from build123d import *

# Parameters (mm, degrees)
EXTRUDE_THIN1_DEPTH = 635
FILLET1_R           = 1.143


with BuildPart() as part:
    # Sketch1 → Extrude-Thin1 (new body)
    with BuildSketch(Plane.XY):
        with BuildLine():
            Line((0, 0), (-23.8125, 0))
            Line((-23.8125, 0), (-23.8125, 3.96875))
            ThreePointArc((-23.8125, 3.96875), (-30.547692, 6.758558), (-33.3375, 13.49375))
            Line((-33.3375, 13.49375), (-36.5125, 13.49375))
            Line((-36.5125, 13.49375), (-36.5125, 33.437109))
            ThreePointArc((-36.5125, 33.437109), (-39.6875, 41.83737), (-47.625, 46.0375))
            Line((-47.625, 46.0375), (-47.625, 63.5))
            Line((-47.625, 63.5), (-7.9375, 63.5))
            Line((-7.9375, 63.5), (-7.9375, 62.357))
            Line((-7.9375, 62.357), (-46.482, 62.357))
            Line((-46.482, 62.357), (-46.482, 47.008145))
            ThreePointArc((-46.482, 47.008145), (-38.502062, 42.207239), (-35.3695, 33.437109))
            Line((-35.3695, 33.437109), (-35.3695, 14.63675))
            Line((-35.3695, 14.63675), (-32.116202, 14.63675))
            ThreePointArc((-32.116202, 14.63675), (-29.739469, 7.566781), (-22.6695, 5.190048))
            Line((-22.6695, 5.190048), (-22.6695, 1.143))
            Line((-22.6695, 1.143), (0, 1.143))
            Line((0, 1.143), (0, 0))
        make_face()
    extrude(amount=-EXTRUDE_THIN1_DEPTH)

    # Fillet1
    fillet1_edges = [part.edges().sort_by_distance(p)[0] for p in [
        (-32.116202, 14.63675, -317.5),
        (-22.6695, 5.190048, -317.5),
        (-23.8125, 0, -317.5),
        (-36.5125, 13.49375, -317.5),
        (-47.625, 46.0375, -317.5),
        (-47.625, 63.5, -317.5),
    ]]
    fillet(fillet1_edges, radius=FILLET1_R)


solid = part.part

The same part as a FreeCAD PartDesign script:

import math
import FreeCAD as App
import Part
import Sketcher
Q = App.Units.Quantity


def edges_at(feature, points):
    """Names of the edges that pass closest to the given points."""
    edges = feature.Shape.Edges
    near = lambda p: min(range(len(edges)), key=lambda i: edges[i].distToShape(Part.Vertex(*p))[0])
    return sorted({f"Edge{near(p) + 1}" for p in points})

doc = App.newDocument("Part")
params = doc.addObject("Spreadsheet::Sheet", "Params")
for row, (alias, value) in enumerate([
    ("sketch1_radius", "0.5 in"),
    ("sketch1_radius2", "0.33 in"),
    ("sketch1_radius3", "0.5449999 in"),
    ("sketch1_radius4", "0.375 in"),
    ("sketch1_width", "0.9375 in"),
    ("pad1_length", "25 in"),
    ("fillet_radius", "0.045 in"),
], start=1):
    params.set(f"A{row}", alias)
    params.set(f"B{row}", "=" + value)
    params.setAlias(f"B{row}", alias)

body = doc.addObject("PartDesign::Body", "Body")

sketch1 = body.newObject("Sketcher::SketchObject", "Sketch")
sketch1.AttachmentSupport = (doc.getObject("XY_Plane"), [""])
sketch1.MapMode = "FlatFace"
sketch1.addGeometry(Part.LineSegment(App.Vector(-23.8, 0, 0), App.Vector(0, 0, 0)), False)
sketch1.addGeometry(Part.LineSegment(App.Vector(0, 0, 0), App.Vector(0, 1.1, 0)), False)
sketch1.addGeometry(Part.LineSegment(App.Vector(0, 1.1, 0), App.Vector(-22.7, 1.1, 0)), False)
sketch1.addGeometry(Part.LineSegment(App.Vector(-22.7, 1.1, 0), App.Vector(-22.7, 5.2, 0)), False)
sketch1.addGeometry(Part.ArcOfCircle(Part.Circle(App.Vector(-23.8, 13.5, 0), App.Vector(0, 0, 1), 8.4), math.radians(172), math.radians(278)), False)
sketch1.addGeometry(Part.LineSegment(App.Vector(-32.1, 14.6, 0), App.Vector(-35.4, 14.6, 0)), False)
sketch1.addGeometry(Part.LineSegment(App.Vector(-35.4, 14.6, 0), App.Vector(-35.4, 33.4, 0)), False)
sketch1.addGeometry(Part.ArcOfCircle(Part.Circle(App.Vector(-49.2, 33.4, 0), App.Vector(0, 0, 1), 13.8), math.radians(0), math.radians(79)), False)
sketch1.addGeometry(Part.LineSegment(App.Vector(-46.5, 47, 0), App.Vector(-46.5, 62.4, 0)), False)
sketch1.addGeometry(Part.LineSegment(App.Vector(-46.5, 62.4, 0), App.Vector(-7.9, 62.4, 0)), False)
sketch1.addGeometry(Part.LineSegment(App.Vector(-7.9, 62.4, 0), App.Vector(-7.9, 63.5, 0)), False)
sketch1.addGeometry(Part.LineSegment(App.Vector(-7.9, 63.5, 0), App.Vector(-47.6, 63.5, 0)), False)
sketch1.addGeometry(Part.LineSegment(App.Vector(-47.6, 63.5, 0), App.Vector(-47.6, 46, 0)), False)
sketch1.addGeometry(Part.ArcOfCircle(Part.Circle(App.Vector(-49.2, 33.4, 0), App.Vector(0, 0, 1), 12.7), math.radians(0), math.radians(83)), False)
sketch1.addGeometry(Part.LineSegment(App.Vector(-36.5, 33.4, 0), App.Vector(-36.5, 13.5, 0)), False)
sketch1.addGeometry(Part.LineSegment(App.Vector(-36.5, 13.5, 0), App.Vector(-33.3, 13.5, 0)), False)
sketch1.addGeometry(Part.ArcOfCircle(Part.Circle(App.Vector(-23.8, 13.5, 0), App.Vector(0, 0, 1), 9.5), math.radians(-180), math.radians(-90)), False)
sketch1.addGeometry(Part.LineSegment(App.Vector(-23.8, 4, 0), App.Vector(-23.8, 0, 0)), False)
sketch1.addConstraint(Sketcher.Constraint("Coincident", 0, 2, 1, 1))
sketch1.addConstraint(Sketcher.Constraint("Coincident", 1, 2, 2, 1))
sketch1.addConstraint(Sketcher.Constraint("Coincident", 2, 2, 3, 1))
sketch1.addConstraint(Sketcher.Constraint("Coincident", 3, 2, 4, 2))
sketch1.addConstraint(Sketcher.Constraint("Coincident", 4, 1, 5, 1))
sketch1.addConstraint(Sketcher.Constraint("Coincident", 5, 2, 6, 1))
sketch1.addConstraint(Sketcher.Constraint("Tangent", 6, 2, 7, 1))
sketch1.addConstraint(Sketcher.Constraint("Coincident", 7, 2, 8, 1))
sketch1.addConstraint(Sketcher.Constraint("Coincident", 8, 2, 9, 1))
sketch1.addConstraint(Sketcher.Constraint("Coincident", 9, 2, 10, 1))
sketch1.addConstraint(Sketcher.Constraint("Coincident", 10, 2, 11, 1))
sketch1.addConstraint(Sketcher.Constraint("Coincident", 11, 2, 12, 1))
sketch1.addConstraint(Sketcher.Constraint("Coincident", 12, 2, 13, 2))
sketch1.addConstraint(Sketcher.Constraint("Tangent", 13, 1, 14, 1))
sketch1.addConstraint(Sketcher.Constraint("Coincident", 14, 2, 15, 1))
sketch1.addConstraint(Sketcher.Constraint("Coincident", 15, 2, 16, 1))
sketch1.addConstraint(Sketcher.Constraint("Coincident", 16, 2, 17, 1))
sketch1.addConstraint(Sketcher.Constraint("Coincident", 17, 2, 0, 1))
sketch1.addConstraint(Sketcher.Constraint("Horizontal", 0))
sketch1.addConstraint(Sketcher.Constraint("Vertical", 1))
sketch1.addConstraint(Sketcher.Constraint("Horizontal", 2))
sketch1.addConstraint(Sketcher.Constraint("Vertical", 3))
sketch1.addConstraint(Sketcher.Constraint("Horizontal", 5))
sketch1.addConstraint(Sketcher.Constraint("Vertical", 6))
sketch1.addConstraint(Sketcher.Constraint("Vertical", 8))
sketch1.addConstraint(Sketcher.Constraint("Horizontal", 9))
sketch1.addConstraint(Sketcher.Constraint("Vertical", 10))
sketch1.addConstraint(Sketcher.Constraint("Horizontal", 11))
sketch1.addConstraint(Sketcher.Constraint("Vertical", 12))
sketch1.addConstraint(Sketcher.Constraint("Vertical", 14))
sketch1.addConstraint(Sketcher.Constraint("Horizontal", 15))
sketch1.addConstraint(Sketcher.Constraint("Vertical", 17))
sketch1.addConstraint(Sketcher.Constraint("Coincident", 0, 2, -1, 1))
sketch1.addConstraint(Sketcher.Constraint("Coincident", 13, 3, 7, 3))
sketch1.addConstraint(Sketcher.Constraint("Coincident", 16, 3, 4, 3))
sketch1.addConstraint(Sketcher.Constraint("Horizontal", 16, 3, 14, 2))
sketch1.addConstraint(Sketcher.Constraint("Vertical", 4, 3, 16, 2))
sketch1.addConstraint(Sketcher.Constraint("Equal", 1, 10))
sketch1.addConstraint(Sketcher.Constraint("Radius", 13, Q("0.5 in")))
sketch1.addConstraint(Sketcher.Constraint("Radius", 4, Q("0.33 in")))
sketch1.addConstraint(Sketcher.Constraint("Radius", 7, Q("0.5449999 in")))
sketch1.addConstraint(Sketcher.Constraint("Radius", 16, Q("0.375 in")))
sketch1.addConstraint(Sketcher.Constraint("DistanceX", 7, 3, 4, 3, Q("0.9999999 in")))
sketch1.addConstraint(Sketcher.Constraint("DistanceY", -1, 1, 10, 2, Q("2.5 in")))
sketch1.addConstraint(Sketcher.Constraint("DistanceX", 5, 2, 3, 2, Q("0.5 in")))
sketch1.addConstraint(Sketcher.Constraint("DistanceX", 0, 1, 0, 2, Q("0.9375 in")))
sketch1.addConstraint(Sketcher.Constraint("DistanceX", 11, 2, 11, 1, Q("1.5625 in")))
sketch1.addConstraint(Sketcher.Constraint("DistanceY", 1, 1, 1, 2, Q("0.045 in")))
sketch1.addConstraint(Sketcher.Constraint("DistanceY", 12, 2, 12, 1, Q("0.6875 in")))
sketch1.addConstraint(Sketcher.Constraint("DistanceY", 17, 2, 17, 1, Q("0.15625 in")))
sketch1.addConstraint(Sketcher.Constraint("DistanceX", 7, 2, -1, 1, Q("1.83 in")))
sketch1.addConstraint(Sketcher.Constraint("DistanceX", 6, 2, 9, 2, Q("1.08 in")))
sketch1.addConstraint(Sketcher.Constraint("DistanceY", 4, 3, 4, 1, Q("0.045 in")))
sketch1.setExpression("Constraints[38]", "Params.sketch1_radius")
sketch1.setExpression("Constraints[39]", "Params.sketch1_radius2")
sketch1.setExpression("Constraints[40]", "Params.sketch1_radius3")
sketch1.setExpression("Constraints[41]", "Params.sketch1_radius4")
sketch1.setExpression("Constraints[45]", "Params.sketch1_width")
pad1 = body.newObject("PartDesign::Pad", "Pad")
pad1.Profile = sketch1
pad1.setExpression("Length", "Params.pad1_length")
pad1.Reversed = True
doc.recompute()

fillet = body.newObject("PartDesign::Fillet", "Fillet")
fillet.Base = (pad1, edges_at(pad1, [
    (-32.116, 14.637, -317.5),
    (-22.669, 5.19, -317.5),
    (-23.812, 0, -317.5),
    (-36.513, 13.494, -317.5),
    (-47.625, 46.038, -317.5),
    (-47.625, 63.5, -317.5),
]))
fillet.setExpression("Radius", "Params.fillet_radius")

doc.recompute()
